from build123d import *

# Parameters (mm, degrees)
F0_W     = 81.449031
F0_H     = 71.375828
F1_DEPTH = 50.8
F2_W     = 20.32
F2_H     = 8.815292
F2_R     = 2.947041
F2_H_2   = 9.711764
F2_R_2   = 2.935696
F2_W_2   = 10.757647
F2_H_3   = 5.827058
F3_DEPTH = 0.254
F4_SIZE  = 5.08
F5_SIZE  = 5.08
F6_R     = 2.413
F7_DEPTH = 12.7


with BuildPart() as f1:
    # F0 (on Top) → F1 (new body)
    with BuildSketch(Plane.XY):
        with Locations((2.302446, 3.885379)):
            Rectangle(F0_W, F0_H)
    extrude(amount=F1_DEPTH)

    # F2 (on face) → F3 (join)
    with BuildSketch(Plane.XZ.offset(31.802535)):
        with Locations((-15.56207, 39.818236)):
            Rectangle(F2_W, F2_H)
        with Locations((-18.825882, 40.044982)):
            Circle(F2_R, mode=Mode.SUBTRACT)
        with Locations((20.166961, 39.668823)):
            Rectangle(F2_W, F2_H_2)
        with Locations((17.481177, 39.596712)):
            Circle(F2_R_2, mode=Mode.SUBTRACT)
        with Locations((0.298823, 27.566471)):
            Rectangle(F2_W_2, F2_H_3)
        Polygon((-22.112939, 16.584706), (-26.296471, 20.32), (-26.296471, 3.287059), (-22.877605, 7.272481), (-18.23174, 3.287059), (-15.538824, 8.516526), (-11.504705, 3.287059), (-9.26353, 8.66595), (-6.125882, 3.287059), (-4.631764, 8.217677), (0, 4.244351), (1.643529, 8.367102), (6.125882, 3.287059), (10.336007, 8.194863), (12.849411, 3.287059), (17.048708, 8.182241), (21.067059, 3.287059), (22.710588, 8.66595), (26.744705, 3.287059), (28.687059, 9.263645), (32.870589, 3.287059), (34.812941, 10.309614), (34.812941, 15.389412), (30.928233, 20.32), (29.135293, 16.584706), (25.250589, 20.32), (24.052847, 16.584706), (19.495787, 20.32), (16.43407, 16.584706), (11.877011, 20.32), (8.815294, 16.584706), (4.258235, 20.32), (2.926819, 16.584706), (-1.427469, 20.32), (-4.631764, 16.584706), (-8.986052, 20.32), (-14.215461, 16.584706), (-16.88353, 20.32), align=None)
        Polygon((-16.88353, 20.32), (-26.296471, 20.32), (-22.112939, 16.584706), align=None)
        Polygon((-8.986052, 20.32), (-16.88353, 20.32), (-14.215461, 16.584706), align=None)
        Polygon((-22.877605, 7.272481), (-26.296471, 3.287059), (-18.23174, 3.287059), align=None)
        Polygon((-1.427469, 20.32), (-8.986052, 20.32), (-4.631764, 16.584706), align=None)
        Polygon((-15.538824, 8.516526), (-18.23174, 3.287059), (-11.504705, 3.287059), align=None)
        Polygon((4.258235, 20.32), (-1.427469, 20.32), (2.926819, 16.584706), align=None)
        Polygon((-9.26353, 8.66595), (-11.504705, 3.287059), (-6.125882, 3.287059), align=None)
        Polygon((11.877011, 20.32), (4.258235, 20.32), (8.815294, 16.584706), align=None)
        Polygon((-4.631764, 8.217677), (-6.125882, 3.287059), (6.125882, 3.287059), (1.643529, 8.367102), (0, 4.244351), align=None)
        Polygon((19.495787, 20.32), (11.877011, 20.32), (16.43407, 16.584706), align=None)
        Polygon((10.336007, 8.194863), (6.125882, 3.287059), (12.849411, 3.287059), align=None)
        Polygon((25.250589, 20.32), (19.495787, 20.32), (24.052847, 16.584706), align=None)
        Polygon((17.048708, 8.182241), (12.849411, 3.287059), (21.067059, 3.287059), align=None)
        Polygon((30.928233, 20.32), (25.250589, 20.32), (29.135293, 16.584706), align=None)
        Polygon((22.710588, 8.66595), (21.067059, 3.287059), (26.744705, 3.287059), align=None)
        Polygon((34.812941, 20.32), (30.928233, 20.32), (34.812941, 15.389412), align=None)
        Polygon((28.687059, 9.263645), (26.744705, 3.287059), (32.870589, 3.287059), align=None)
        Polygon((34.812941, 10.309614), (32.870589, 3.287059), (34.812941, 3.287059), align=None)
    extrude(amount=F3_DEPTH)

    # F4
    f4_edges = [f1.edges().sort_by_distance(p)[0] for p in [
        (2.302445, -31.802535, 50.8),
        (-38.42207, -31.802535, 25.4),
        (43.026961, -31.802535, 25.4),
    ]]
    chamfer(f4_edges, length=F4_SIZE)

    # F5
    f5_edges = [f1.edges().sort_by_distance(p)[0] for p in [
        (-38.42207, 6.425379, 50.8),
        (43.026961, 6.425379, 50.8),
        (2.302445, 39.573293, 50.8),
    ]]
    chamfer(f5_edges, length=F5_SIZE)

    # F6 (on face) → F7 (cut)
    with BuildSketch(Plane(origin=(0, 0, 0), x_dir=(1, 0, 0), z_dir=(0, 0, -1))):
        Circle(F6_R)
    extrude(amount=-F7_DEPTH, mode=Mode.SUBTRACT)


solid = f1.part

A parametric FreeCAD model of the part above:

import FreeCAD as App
import Part
import Sketcher
from FreeCAD import Vector
Q = App.Units.Quantity


def edges_at(feature, points):
    """Names of the edges that pass closest to the given points."""
    edges = feature.Shape.Edges
    near = lambda p: min(range(len(edges)), key=lambda i: edges[i].distToShape(Part.Vertex(*p))[0])
    return sorted({f"Edge{near(p) + 1}" for p in points})

doc = App.newDocument("Part")
body = doc.addObject("PartDesign::Body", "Body")

sketch1 = doc.addObject("Sketcher::SketchObject", "Sketch")
body.addObject(sketch1)
sketch1.AttachmentSupport = (doc.XY_Plane, [""])
sketch1.MapMode = "FlatFace"
sketch1.addGeometry(Part.LineSegment(Vector(-38.422069, 39.573293, 0), Vector(-38.422069, -31.802535, 0)), False)
sketch1.addGeometry(Part.LineSegment(Vector(-38.422069, -31.802535, 0), Vector(43.026961, -31.802535, 0)), False)
sketch1.addGeometry(Part.LineSegment(Vector(43.026961, -31.802535, 0), Vector(43.026961, 39.573293, 0)), False)
sketch1.addGeometry(Part.LineSegment(Vector(43.026961, 39.573293, 0), Vector(-38.422069, 39.573293, 0)), False)
sketch1.addConstraint(Sketcher.Constraint("Coincident", 0, 2, 1, 1))
sketch1.addConstraint(Sketcher.Constraint("Coincident", 1, 2, 2, 1))
sketch1.addConstraint(Sketcher.Constraint("Coincident", 2, 2, 3, 1))
sketch1.addConstraint(Sketcher.Constraint("Coincident", 3, 2, 0, 1))
sketch1.addConstraint(Sketcher.Constraint("Vertical", 0))
sketch1.addConstraint(Sketcher.Constraint("Horizontal", 1))
sketch1.addConstraint(Sketcher.Constraint("Vertical", 2))
sketch1.addConstraint(Sketcher.Constraint("Horizontal", 3))
sketch1.addConstraint(Sketcher.Constraint("DistanceX", 1, 1, 1, 2, Q("81.449031 mm")))
sketch1.addConstraint(Sketcher.Constraint("DistanceY", 0, 2, 0, 1, Q("71.375828 mm")))
sketch1.addConstraint(Sketcher.Constraint("DistanceX", 0, 2, -1, 1, Q("38.422069 mm")))
sketch1.addConstraint(Sketcher.Constraint("DistanceY", 0, 2, -1, 1, Q("31.802535 mm")))
pad1 = doc.addObject("PartDesign::Pad", "Pad")
body.addObject(pad1)
pad1.Profile = sketch1
pad1.Length = Q("2 in")

sketch2 = doc.addObject("Sketcher::SketchObject", "Sketch001")
body.addObject(sketch2)
sketch2.AttachmentSupport = (doc.XZ_Plane, [""])
sketch2.MapMode = "FlatFace"
sketch2.AttachmentOffset = App.Placement(Vector(0, 0, 31.802535), App.Rotation())
sketch2.addGeometry(Part.LineSegment(Vector(-25.72207, 44.225882, 0), Vector(-25.72207, 35.41059, 0)), False)
sketch2.addGeometry(Part.LineSegment(Vector(-25.72207, 35.41059, 0), Vector(-5.40207, 35.41059, 0)), False)
sketch2.addGeometry(Part.LineSegment(Vector(-5.40207, 35.41059, 0), Vector(-5.40207, 44.225882, 0)), False)
sketch2.addGeometry(Part.LineSegment(Vector(-5.40207, 44.225882, 0), Vector(-25.72207, 44.225882, 0)), False)
sketch2.addGeometry(Part.Circle(Vector(-18.825882, 40.044982, 0), Vector(0, 0, 1), 2.947041), False)
sketch2.addGeometry(Part.LineSegment(Vector(10.006961, 44.524705, 0), Vector(10.006961, 34.812941, 0)), False)
sketch2.addGeometry(Part.LineSegment(Vector(10.006961, 34.812941, 0), Vector(30.326961, 34.812941, 0)), False)
sketch2.addGeometry(Part.LineSegment(Vector(30.326961, 34.812941, 0), Vector(30.326961, 44.524705, 0)), False)
sketch2.addGeometry(Part.LineSegment(Vector(30.326961, 44.524705, 0), Vector(10.006961, 44.524705, 0)), False)
sketch2.addGeometry(Part.Circle(Vector(17.481177, 39.596712, 0), Vector(0, 0, 1), 2.935696), False)
sketch2.addGeometry(Part.LineSegment(Vector(-5.08, 30.48, 0), Vector(-5.08, 24.652942, 0)), False)
sketch2.addGeometry(Part.LineSegment(Vector(-5.08, 24.652942, 0), Vector(5.677646, 24.652942, 0)), False)
sketch2.addGeometry(Part.LineSegment(Vector(5.677646, 24.652942, 0), Vector(5.677646, 30.48, 0)), False)
sketch2.addGeometry(Part.LineSegment(Vector(5.677646, 30.48, 0), Vector(-5.08, 30.48, 0)), False)
sketch2.addGeometry(Part.LineSegment(Vector(-26.296471, 20.32, 0), Vector(-26.296471, 3.287059, 0)), False)
sketch2.addGeometry(Part.LineSegment(Vector(-26.296471, 3.287059, 0), Vector(34.812941, 3.287059, 0)), False)
sketch2.addGeometry(Part.LineSegment(Vector(34.812941, 3.287059, 0), Vector(34.812941, 20.32, 0)), False)
sketch2.addGeometry(Part.LineSegment(Vector(34.812941, 20.32, 0), Vector(-26.296471, 20.32, 0)), False)
sketch2.addConstraint(Sketcher.Constraint("Coincident", 0, 2, 1, 1))
sketch2.addConstraint(Sketcher.Constraint("Coincident", 1, 2, 2, 1))
sketch2.addConstraint(Sketcher.Constraint("Coincident", 2, 2, 3, 1))
sketch2.addConstraint(Sketcher.Constraint("Coincident", 3, 2, 0, 1))
sketch2.addConstraint(Sketcher.Constraint("Coincident", 5, 2, 6, 1))
sketch2.addConstraint(Sketcher.Constraint("Coincident", 6, 2, 7, 1))
sketch2.addConstraint(Sketcher.Constraint("Coincident", 7, 2, 8, 1))
sketch2.addConstraint(Sketcher.Constraint("Coincident", 8, 2, 5, 1))
sketch2.addConstraint(Sketcher.Constraint("Coincident", 10, 2, 11, 1))
sketch2.addConstraint(Sketcher.Constraint("Coincident", 11, 2, 12, 1))
sketch2.addConstraint(Sketcher.Constraint("Coincident", 12, 2, 13, 1))
sketch2.addConstraint(Sketcher.Constraint("Coincident", 13, 2, 10, 1))
sketch2.addConstraint(Sketcher.Constraint("Coincident", 14, 2, 15, 1))
sketch2.addConstraint(Sketcher.Constraint("Coincident", 15, 2, 16, 1))
sketch2.addConstraint(Sketcher.Constraint("Coincident", 16, 2, 17, 1))
sketch2.addConstraint(Sketcher.Constraint("Coincident", 17, 2, 14, 1))
sketch2.addConstraint(Sketcher.Constraint("Vertical", 0))
sketch2.addConstraint(Sketcher.Constraint("Horizontal", 1))
sketch2.addConstraint(Sketcher.Constraint("Vertical", 2))
sketch2.addConstraint(Sketcher.Constraint("Horizontal", 3))
sketch2.addConstraint(Sketcher.Constraint("Vertical", 5))
sketch2.addConstraint(Sketcher.Constraint("Horizontal", 6))
sketch2.addConstraint(Sketcher.Constraint("Vertical", 7))
sketch2.addConstraint(Sketcher.Constraint("Horizontal", 8))
sketch2.addConstraint(Sketcher.Constraint("Vertical", 10))
sketch2.addConstraint(Sketcher.Constraint("Horizontal", 11))
sketch2.addConstraint(Sketcher.Constraint("Vertical", 12))
sketch2.addConstraint(Sketcher.Constraint("Horizontal", 13))
sketch2.addConstraint(Sketcher.Constraint("Vertical", 14))
sketch2.addConstraint(Sketcher.Constraint("Horizontal", 15))
sketch2.addConstraint(Sketcher.Constraint("Vertical", 16))
sketch2.addConstraint(Sketcher.Constraint("Horizontal", 17))
sketch2.addConstraint(Sketcher.Constraint("Equal", 3, 6))
sketch2.addConstraint(Sketcher.Constraint("DistanceX", 1, 1, 1, 2, Q("0.8 in")))
sketch2.addConstraint(Sketcher.Constraint("DistanceX", 10, 2, -1, 1, Q("0.2 in")))
sketch2.addConstraint(Sketcher.Constraint("DistanceY", -1, 1, 12, 2, Q("1.2 in")))
sketch2.addConstraint(Sketcher.Constraint("DistanceY", -1, 1, 16, 2, Q("0.8 in")))
sketch2.addConstraint(Sketcher.Constraint("DistanceY", 10, 2, 5, 2, Q("0.4 in")))
sketch2.addConstraint(Sketcher.Constraint("Diameter", 4, Q("5.894082 mm")))
sketch2.addConstraint(Sketcher.Constraint("Diameter", 9, Q("5.871392 mm")))
sketch2.addConstraint(Sketcher.Constraint("DistanceY", 10, 2, 10, 1, Q("5.827058 mm")))
sketch2.addConstraint(Sketcher.Constraint("DistanceY", 14, 2, 14, 1, Q("17.032941 mm")))
sketch2.addConstraint(Sketcher.Constraint("DistanceY", 4, 3, 2, 2, Q("4.1809 mm")))
sketch2.addConstraint(Sketcher.Constraint("DistanceX", 14, 2, 0, 2, Q("0.574401 mm")))
sketch2.addConstraint(Sketcher.Constraint("DistanceX", 11, 1, 11, 2, Q("10.757647 mm")))
sketch2.addConstraint(Sketcher.Constraint("DistanceX", 15, 1, 15, 2, Q("61.109412 mm")))
sketch2.addConstraint(Sketcher.Constraint("DistanceY", 0, 2, 0, 1, Q("8.815292 mm")))
sketch2.addConstraint(Sketcher.Constraint("DistanceY", 5, 2, 5, 1, Q("9.711764 mm")))
sketch2.addConstraint(Sketcher.Constraint("DistanceX", 4, 3, -1, 1, Q("18.825882 mm")))
sketch2.addConstraint(Sketcher.Constraint("DistanceY", -1, 1, 4, 3, Q("40.044982 mm")))
sketch2.addConstraint(Sketcher.Constraint("DistanceY", -1, 1, 9, 3, Q("39.596712 mm")))
sketch2.addConstraint(Sketcher.Constraint("DistanceX", 0, 2, -1, 1, Q("25.72207 mm")))
sketch2.addConstraint(Sketcher.Constraint("DistanceX", -1, 1, 5, 2, Q("10.006961 mm")))
sketch2.addConstraint(Sketcher.Constraint("DistanceX", 4, 3, 9, 3, Q("36.307059 mm")))
pad2 = doc.addObject("PartDesign::Pad", "Pad001")
body.addObject(pad2)
pad2.Profile = sketch2
pad2.Length = Q("0.01 in")
doc.recompute()

chamfer = doc.addObject("PartDesign::Chamfer", "Chamfer")
body.addObject(chamfer)
chamfer.Base = (pad2, edges_at(pad2, [(2.302, -31.803, 50.8), (-38.422, -31.803, 25.4), (43.027, -31.803, 25.4)]))
chamfer.Size = Q("0.2 in")
doc.recompute()

chamfer2 = doc.addObject("PartDesign::Chamfer", "Chamfer001")
body.addObject(chamfer2)
chamfer2.Base = (chamfer, edges_at(chamfer, [(-38.422, 6.425, 50.8), (43.027, 6.425, 50.8), (2.302, 39.573, 50.8)]))
chamfer2.Size = Q("0.2 in")

sketch3 = doc.addObject("Sketcher::SketchObject", "Sketch002")
body.addObject(sketch3)
sketch3.AttachmentSupport = (doc.XY_Plane, [""])
sketch3.MapMode = "FlatFace"
sketch3.addGeometry(Part.Circle(Vector(0, 0, 0), Vector(0, 0, 1), 2.413), False)
sketch3.addConstraint(Sketcher.Constraint("Coincident", 0, 3, -1, 1))
sketch3.addConstraint(Sketcher.Constraint("Diameter", 0, Q("0.19 in")))
pocket1 = doc.addObject("PartDesign::Pocket", "Pocket")
body.addObject(pocket1)
pocket1.Profile = sketch3
pocket1.Length = Q("0.5 in")
pocket1.Reversed = True

doc.recompute()
